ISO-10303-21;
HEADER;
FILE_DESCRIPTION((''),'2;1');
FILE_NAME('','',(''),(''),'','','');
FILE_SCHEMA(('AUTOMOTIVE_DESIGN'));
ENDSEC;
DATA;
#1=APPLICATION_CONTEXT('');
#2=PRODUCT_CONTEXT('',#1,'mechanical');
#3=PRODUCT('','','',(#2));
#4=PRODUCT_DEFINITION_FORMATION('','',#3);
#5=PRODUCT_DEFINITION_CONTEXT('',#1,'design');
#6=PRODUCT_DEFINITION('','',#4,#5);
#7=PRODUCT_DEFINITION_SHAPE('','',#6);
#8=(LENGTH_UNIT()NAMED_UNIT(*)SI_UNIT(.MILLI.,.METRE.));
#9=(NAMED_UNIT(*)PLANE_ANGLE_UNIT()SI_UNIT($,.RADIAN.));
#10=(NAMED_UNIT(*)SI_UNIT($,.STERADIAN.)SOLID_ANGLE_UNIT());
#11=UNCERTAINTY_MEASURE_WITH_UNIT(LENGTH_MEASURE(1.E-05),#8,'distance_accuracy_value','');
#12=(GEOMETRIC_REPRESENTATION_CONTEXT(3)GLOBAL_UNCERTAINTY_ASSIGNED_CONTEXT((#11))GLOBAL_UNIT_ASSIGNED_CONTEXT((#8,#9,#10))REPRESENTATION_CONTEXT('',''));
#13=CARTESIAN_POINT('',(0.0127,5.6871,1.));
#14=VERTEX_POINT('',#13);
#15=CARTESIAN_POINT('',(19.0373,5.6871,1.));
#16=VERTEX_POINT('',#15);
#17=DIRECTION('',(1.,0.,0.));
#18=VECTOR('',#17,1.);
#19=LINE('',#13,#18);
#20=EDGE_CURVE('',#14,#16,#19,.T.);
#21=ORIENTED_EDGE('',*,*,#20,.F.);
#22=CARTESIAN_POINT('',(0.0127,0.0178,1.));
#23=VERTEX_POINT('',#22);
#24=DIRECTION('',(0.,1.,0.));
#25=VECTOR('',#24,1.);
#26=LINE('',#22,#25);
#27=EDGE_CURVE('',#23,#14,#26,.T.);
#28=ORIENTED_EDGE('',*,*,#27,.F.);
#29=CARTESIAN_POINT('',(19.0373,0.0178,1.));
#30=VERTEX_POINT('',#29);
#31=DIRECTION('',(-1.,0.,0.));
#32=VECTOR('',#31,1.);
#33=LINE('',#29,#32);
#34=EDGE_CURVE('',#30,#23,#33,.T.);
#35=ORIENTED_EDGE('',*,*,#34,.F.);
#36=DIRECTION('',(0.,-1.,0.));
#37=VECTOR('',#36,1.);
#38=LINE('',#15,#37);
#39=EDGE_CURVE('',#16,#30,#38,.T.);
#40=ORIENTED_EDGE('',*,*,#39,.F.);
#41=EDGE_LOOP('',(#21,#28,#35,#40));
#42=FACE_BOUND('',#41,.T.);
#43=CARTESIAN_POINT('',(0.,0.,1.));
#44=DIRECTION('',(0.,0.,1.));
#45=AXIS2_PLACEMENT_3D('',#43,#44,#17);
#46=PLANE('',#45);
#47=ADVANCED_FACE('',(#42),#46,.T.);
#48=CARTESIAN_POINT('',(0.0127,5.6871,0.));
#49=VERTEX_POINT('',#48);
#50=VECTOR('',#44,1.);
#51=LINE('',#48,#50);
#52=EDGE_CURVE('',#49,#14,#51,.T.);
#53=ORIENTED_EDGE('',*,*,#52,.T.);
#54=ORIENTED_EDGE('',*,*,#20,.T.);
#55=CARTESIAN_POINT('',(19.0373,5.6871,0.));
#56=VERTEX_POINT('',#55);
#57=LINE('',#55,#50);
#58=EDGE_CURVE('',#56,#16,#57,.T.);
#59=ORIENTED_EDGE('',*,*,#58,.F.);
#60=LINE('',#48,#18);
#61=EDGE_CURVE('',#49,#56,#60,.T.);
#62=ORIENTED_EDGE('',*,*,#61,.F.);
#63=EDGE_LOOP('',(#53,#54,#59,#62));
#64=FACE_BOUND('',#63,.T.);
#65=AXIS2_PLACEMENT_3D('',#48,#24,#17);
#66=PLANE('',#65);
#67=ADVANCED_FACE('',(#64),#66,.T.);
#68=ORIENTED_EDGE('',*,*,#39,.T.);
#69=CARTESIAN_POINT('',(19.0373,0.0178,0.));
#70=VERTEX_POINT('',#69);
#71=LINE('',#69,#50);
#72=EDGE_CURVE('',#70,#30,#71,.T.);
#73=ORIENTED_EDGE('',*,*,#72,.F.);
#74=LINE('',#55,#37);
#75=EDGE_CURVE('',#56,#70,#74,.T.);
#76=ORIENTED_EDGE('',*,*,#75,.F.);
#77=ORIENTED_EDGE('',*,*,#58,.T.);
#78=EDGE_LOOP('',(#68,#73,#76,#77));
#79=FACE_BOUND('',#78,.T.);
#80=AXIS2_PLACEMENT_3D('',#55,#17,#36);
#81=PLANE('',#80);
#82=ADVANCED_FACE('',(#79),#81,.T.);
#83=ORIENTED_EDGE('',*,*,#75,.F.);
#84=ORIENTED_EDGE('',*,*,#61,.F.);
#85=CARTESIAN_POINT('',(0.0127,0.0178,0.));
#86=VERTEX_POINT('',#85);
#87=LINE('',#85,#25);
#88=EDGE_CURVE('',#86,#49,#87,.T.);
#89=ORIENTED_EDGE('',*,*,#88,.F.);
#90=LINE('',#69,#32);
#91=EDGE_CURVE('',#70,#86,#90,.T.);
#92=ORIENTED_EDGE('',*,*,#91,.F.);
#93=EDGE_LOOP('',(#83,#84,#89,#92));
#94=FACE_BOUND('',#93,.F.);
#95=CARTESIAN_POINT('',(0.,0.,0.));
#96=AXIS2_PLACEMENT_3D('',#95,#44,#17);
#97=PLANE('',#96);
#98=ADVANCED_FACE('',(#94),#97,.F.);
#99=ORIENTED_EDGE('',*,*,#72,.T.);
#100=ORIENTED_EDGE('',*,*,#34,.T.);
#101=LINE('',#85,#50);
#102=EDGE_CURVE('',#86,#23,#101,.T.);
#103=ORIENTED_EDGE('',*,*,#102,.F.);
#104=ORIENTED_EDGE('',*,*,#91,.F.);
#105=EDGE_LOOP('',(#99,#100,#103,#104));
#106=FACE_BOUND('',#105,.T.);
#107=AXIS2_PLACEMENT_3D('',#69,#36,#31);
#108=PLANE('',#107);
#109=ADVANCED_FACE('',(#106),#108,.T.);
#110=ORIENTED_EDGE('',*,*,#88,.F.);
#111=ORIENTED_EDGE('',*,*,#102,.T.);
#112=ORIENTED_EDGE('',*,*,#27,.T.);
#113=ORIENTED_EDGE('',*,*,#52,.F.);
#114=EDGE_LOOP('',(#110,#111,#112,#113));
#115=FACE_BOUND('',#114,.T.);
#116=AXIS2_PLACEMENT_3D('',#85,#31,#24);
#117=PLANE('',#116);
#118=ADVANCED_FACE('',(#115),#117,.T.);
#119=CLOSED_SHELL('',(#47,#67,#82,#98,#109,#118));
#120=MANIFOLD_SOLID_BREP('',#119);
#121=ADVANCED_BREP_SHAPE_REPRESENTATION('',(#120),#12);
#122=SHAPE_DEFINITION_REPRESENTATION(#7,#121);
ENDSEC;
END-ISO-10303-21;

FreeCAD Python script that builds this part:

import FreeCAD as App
import Part
import Sketcher
from FreeCAD import Vector

doc = App.newDocument("Part")
body = doc.addObject("PartDesign::Body", "Body")

# Sketch on XY plane
sketch1 = body.newObject("Sketcher::SketchObject", "Sketch")
sketch1.AttachmentSupport = (doc.getObject("XY_Plane"), [""])
sketch1.MapMode = "FlatFace"
sketch1.addGeometry([
    Part.LineSegment(Vector(19, 6, 0), Vector(0, 6, 0)),
    Part.LineSegment(Vector(0, 6, 0), Vector(0, 0, 0)),
    Part.LineSegment(Vector(0, 0, 0), Vector(19, 0, 0)),
    Part.LineSegment(Vector(19, 0, 0), Vector(19, 6, 0)),
], False)
sketch1.addConstraint([
    Sketcher.Constraint("Coincident", 0, 2, 1, 1),
    Sketcher.Constraint("Coincident", 1, 2, 2, 1),
    Sketcher.Constraint("Coincident", 2, 2, 3, 1),
    Sketcher.Constraint("Coincident", 3, 2, 0, 1),
    Sketcher.Constraint("Horizontal", 0),
    Sketcher.Constraint("Vertical", 1),
    Sketcher.Constraint("Horizontal", 2),
    Sketcher.Constraint("Vertical", 3),
    Sketcher.Constraint("DistanceX", 0, 2, 0, 1, 19.0246),
    Sketcher.Constraint("DistanceY", 1, 2, 1, 1, 5.6693),
    Sketcher.Constraint("DistanceY", -1, 1, 0, 2, 5.687),
    Sketcher.Constraint("DistanceX", -1, 1, 0, 2, 0.0127),
])
pad1 = body.newObject("PartDesign::Pad", "Pad")
pad1.Profile = sketch1
pad1.Length = 1

doc.recompute()
